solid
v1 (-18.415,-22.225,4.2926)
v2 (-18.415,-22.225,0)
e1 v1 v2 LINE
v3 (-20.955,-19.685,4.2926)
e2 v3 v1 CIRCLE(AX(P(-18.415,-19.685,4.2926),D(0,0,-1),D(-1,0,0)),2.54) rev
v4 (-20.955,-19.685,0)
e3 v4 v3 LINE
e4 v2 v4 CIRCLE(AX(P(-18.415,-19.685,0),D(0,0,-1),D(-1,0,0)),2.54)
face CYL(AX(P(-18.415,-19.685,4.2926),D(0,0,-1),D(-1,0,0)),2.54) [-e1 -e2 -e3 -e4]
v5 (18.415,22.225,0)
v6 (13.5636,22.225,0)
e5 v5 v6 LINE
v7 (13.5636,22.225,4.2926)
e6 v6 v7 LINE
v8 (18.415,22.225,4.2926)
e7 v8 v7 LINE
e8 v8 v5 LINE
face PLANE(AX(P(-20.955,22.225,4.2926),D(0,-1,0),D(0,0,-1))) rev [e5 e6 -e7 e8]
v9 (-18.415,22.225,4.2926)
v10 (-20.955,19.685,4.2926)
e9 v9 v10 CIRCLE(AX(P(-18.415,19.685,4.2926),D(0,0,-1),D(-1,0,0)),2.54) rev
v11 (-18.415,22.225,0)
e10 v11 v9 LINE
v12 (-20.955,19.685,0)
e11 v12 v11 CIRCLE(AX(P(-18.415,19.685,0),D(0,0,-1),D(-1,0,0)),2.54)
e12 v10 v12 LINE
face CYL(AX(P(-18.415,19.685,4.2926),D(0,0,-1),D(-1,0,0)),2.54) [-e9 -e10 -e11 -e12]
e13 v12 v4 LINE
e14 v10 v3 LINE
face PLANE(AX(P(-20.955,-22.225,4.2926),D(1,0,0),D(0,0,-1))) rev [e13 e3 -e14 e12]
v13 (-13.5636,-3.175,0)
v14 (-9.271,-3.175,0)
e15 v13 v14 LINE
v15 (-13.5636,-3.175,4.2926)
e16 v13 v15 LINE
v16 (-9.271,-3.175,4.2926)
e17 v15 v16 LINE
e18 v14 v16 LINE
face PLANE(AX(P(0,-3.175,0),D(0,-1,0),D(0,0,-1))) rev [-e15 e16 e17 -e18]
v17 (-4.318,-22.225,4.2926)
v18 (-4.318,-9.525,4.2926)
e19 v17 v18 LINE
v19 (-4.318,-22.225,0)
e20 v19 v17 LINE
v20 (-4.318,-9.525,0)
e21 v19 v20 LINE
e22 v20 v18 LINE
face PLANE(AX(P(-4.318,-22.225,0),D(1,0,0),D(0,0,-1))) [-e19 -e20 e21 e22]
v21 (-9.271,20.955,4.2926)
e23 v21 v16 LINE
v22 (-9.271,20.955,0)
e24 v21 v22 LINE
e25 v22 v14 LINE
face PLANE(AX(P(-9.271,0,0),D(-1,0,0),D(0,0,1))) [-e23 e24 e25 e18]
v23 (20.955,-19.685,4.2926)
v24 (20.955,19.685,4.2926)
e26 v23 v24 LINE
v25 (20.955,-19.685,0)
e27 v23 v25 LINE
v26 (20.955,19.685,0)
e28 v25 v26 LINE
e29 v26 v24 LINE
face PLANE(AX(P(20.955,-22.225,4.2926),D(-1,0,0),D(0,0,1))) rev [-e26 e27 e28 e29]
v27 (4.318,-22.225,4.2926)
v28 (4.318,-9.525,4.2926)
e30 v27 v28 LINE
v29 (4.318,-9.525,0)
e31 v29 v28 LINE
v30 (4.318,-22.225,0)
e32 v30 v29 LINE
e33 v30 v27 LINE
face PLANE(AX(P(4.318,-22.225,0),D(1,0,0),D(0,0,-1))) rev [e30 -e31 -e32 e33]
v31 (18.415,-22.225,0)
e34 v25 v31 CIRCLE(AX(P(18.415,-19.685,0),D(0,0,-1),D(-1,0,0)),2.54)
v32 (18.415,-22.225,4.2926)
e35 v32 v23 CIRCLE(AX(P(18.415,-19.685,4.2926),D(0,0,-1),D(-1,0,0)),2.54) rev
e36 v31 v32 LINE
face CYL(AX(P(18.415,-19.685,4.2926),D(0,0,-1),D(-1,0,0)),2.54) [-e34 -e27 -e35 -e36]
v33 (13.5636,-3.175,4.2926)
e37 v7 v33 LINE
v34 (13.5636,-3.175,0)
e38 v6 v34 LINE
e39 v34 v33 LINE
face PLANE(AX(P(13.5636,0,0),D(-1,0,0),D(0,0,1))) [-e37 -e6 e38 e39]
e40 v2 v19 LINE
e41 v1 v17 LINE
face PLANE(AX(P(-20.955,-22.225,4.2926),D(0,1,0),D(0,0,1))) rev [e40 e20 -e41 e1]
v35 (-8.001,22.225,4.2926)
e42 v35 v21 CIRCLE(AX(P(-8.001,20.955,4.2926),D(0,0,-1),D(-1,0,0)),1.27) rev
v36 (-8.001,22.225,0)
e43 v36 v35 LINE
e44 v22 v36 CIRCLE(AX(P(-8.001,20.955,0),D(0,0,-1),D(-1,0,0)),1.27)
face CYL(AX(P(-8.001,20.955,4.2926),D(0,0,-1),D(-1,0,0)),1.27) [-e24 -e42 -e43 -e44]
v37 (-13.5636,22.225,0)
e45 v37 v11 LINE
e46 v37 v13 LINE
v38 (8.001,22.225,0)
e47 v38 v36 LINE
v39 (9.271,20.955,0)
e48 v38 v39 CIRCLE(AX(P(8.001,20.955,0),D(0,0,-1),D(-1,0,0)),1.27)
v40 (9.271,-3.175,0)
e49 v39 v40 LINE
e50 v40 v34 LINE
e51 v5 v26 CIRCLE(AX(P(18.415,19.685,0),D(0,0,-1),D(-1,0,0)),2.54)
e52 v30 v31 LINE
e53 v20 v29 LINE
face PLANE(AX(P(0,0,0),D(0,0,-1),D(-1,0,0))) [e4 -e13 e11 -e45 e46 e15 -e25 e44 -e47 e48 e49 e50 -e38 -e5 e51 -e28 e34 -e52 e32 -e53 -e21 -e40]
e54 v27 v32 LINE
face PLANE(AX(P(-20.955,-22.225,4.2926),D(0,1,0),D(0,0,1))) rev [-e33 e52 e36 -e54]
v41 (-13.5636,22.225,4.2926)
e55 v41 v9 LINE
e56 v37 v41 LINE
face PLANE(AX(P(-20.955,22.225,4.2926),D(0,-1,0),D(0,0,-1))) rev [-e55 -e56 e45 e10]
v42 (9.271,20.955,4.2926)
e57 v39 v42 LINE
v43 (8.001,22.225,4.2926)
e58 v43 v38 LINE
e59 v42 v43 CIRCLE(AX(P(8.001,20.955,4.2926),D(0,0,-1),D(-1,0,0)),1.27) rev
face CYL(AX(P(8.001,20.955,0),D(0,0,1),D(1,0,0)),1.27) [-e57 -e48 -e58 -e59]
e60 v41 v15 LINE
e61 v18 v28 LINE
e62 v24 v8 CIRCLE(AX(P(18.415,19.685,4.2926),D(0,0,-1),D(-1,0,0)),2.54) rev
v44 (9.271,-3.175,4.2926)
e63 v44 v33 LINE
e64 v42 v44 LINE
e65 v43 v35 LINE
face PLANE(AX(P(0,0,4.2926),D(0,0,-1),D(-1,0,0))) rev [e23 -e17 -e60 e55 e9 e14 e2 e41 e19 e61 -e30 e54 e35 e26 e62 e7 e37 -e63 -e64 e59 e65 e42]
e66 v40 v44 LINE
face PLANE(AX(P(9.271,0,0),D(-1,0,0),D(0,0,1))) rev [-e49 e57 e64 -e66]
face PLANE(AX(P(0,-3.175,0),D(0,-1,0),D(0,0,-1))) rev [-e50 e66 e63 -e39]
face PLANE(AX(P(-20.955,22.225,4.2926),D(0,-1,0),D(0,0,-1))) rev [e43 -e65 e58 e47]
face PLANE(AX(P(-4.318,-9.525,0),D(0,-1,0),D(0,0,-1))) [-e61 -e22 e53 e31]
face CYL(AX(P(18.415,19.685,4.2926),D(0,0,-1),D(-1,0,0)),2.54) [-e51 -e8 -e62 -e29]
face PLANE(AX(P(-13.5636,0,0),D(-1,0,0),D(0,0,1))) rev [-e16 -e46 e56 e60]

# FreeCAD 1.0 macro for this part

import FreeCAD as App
import Part
import Sketcher
Q = App.Units.Quantity


def edges_at(feature, points):
    """Names of the edges that pass closest to the given points."""
    edges = feature.Shape.Edges
    near = lambda p: min(range(len(edges)), key=lambda i: edges[i].distToShape(Part.Vertex(*p))[0])
    return sorted({f"Edge{near(p) + 1}" for p in points})


def add_polygon(sketch, points):
    """Adds a closed chain of lines whose ends are joined by coincident constraints."""
    first, n = sketch.GeometryCount, len(points)
    for a, b in zip(points, points[1:] + points[:1]):
        sketch.addGeometry(Part.LineSegment(App.Vector(*a, 0), App.Vector(*b, 0)), False)
    for i in range(n):
        sketch.addConstraint(Sketcher.Constraint("Coincident", first + i, 2, first + (i + 1) % n, 1))

doc = App.newDocument("Part")
body = doc.addObject("PartDesign::Body", "Body")

# Sketch on XY plane
sketch1 = body.newObject("Sketcher::SketchObject", "Sketch")
sketch1.AttachmentSupport = (doc.getObject("XY_Plane"), [""])
sketch1.MapMode = "FlatFace"
add_polygon(sketch1, [(-21, 22), (-21, -22), (21, -22), (21, 22)])  # lines 0-3
sketch1.addConstraint([
    Sketcher.Constraint("Vertical", 0),
    Sketcher.Constraint("Horizontal", 1),
    Sketcher.Constraint("Vertical", 2),
    Sketcher.Constraint("Horizontal", 3),
    Sketcher.Constraint("Symmetric", 0, 2, 2, 2, -1, 1),
    Sketcher.Constraint("DistanceX", 1, 1, 1, 2, Q("1.65 in")),
    Sketcher.Constraint("DistanceY", 0, 2, 0, 1, Q("1.75 in")),
])
pad1 = body.newObject("PartDesign::Pad", "Pad")
pad1.Profile = sketch1
pad1.Length = Q("0.169 in")
doc.recompute()

fillet = body.newObject("PartDesign::Fillet", "Fillet")
fillet.Base = (pad1, edges_at(pad1, [
    (20.955, -22.225, 2.146),
    (-20.955, -22.225, 2.146),
    (-20.955, 22.225, 2.146),
    (20.955, 22.225, 2.146),
]))
fillet.Radius = Q("0.1 in")

# Sketch on XY plane
sketch2 = body.newObject("Sketcher::SketchObject", "Sketch001")
sketch2.AttachmentSupport = (doc.getObject("XY_Plane"), [""])
sketch2.MapMode = "FlatFace"
sketch2.AttachmentOffset = App.Placement(App.Vector(0, 0, 0.169 * 25.4), App.Rotation())
add_polygon(sketch2, [(-13.6, 22.2), (-13.6, -3.2), (-9.3, -3.2), (-9.3, 22.2)])  # lines 0-3
add_polygon(sketch2, [(9.3, 22.2), (9.3, -3.2), (13.6, -3.2), (13.6, 22.2)])  # lines 4-7
add_polygon(sketch2, [(-4.3, -9.5), (-4.3, -22.2), (4.3, -22.2), (4.3, -9.5)])  # lines 8-11
sketch2.addConstraint([
    Sketcher.Constraint("Vertical", 0),
    Sketcher.Constraint("Horizontal", 1),
    Sketcher.Constraint("Vertical", 2),
    Sketcher.Constraint("Horizontal", 3),
    Sketcher.Constraint("Vertical", 4),
    Sketcher.Constraint("Horizontal", 5),
    Sketcher.Constraint("Vertical", 6),
    Sketcher.Constraint("Horizontal", 7),
    Sketcher.Constraint("Vertical", 8),
    Sketcher.Constraint("Horizontal", 9),
    Sketcher.Constraint("Vertical", 10),
    Sketcher.Constraint("Horizontal", 11),
    Sketcher.Constraint("Symmetric", 1, 2, 4, 2, -2),
    Sketcher.Constraint("Symmetric", 3, 2, 6, 2, -2),
    Sketcher.Constraint("DistanceY", 0, 2, 0, 1, Q("1 in")),
    Sketcher.Constraint("DistanceY", 8, 2, 8, 1, Q("0.5 in")),
    Sketcher.Constraint("DistanceX", 9, 1, 9, 2, Q("0.34 in")),
    Sketcher.Constraint("DistanceX", 1, 1, 1, 2, Q("0.169 in")),
    Sketcher.Constraint("DistanceX", 8, 2, -1, 1, Q("0.17 in")),
    Sketcher.Constraint("DistanceX", 1, 2, 4, 2, Q("0.73 in")),
    Sketcher.Constraint("DistanceY", 8, 2, 1, 2, Q("0.75 in")),
    Sketcher.Constraint("DistanceY", 0, 2, -1, 1, Q("0.125 in")),
])
pocket1 = body.newObject("PartDesign::Pocket", "Pocket")
pocket1.Profile = sketch2
pocket1.Length = Q("0.169 in")
doc.recompute()

fillet2 = body.newObject("PartDesign::Fillet", "Fillet001")
fillet2.Base = (pocket1, edges_at(pocket1, [(-9.271, 22.225, 2.146), (9.271, 22.225, 2.146)]))
fillet2.Radius = Q("0.05 in")

doc.recompute()
